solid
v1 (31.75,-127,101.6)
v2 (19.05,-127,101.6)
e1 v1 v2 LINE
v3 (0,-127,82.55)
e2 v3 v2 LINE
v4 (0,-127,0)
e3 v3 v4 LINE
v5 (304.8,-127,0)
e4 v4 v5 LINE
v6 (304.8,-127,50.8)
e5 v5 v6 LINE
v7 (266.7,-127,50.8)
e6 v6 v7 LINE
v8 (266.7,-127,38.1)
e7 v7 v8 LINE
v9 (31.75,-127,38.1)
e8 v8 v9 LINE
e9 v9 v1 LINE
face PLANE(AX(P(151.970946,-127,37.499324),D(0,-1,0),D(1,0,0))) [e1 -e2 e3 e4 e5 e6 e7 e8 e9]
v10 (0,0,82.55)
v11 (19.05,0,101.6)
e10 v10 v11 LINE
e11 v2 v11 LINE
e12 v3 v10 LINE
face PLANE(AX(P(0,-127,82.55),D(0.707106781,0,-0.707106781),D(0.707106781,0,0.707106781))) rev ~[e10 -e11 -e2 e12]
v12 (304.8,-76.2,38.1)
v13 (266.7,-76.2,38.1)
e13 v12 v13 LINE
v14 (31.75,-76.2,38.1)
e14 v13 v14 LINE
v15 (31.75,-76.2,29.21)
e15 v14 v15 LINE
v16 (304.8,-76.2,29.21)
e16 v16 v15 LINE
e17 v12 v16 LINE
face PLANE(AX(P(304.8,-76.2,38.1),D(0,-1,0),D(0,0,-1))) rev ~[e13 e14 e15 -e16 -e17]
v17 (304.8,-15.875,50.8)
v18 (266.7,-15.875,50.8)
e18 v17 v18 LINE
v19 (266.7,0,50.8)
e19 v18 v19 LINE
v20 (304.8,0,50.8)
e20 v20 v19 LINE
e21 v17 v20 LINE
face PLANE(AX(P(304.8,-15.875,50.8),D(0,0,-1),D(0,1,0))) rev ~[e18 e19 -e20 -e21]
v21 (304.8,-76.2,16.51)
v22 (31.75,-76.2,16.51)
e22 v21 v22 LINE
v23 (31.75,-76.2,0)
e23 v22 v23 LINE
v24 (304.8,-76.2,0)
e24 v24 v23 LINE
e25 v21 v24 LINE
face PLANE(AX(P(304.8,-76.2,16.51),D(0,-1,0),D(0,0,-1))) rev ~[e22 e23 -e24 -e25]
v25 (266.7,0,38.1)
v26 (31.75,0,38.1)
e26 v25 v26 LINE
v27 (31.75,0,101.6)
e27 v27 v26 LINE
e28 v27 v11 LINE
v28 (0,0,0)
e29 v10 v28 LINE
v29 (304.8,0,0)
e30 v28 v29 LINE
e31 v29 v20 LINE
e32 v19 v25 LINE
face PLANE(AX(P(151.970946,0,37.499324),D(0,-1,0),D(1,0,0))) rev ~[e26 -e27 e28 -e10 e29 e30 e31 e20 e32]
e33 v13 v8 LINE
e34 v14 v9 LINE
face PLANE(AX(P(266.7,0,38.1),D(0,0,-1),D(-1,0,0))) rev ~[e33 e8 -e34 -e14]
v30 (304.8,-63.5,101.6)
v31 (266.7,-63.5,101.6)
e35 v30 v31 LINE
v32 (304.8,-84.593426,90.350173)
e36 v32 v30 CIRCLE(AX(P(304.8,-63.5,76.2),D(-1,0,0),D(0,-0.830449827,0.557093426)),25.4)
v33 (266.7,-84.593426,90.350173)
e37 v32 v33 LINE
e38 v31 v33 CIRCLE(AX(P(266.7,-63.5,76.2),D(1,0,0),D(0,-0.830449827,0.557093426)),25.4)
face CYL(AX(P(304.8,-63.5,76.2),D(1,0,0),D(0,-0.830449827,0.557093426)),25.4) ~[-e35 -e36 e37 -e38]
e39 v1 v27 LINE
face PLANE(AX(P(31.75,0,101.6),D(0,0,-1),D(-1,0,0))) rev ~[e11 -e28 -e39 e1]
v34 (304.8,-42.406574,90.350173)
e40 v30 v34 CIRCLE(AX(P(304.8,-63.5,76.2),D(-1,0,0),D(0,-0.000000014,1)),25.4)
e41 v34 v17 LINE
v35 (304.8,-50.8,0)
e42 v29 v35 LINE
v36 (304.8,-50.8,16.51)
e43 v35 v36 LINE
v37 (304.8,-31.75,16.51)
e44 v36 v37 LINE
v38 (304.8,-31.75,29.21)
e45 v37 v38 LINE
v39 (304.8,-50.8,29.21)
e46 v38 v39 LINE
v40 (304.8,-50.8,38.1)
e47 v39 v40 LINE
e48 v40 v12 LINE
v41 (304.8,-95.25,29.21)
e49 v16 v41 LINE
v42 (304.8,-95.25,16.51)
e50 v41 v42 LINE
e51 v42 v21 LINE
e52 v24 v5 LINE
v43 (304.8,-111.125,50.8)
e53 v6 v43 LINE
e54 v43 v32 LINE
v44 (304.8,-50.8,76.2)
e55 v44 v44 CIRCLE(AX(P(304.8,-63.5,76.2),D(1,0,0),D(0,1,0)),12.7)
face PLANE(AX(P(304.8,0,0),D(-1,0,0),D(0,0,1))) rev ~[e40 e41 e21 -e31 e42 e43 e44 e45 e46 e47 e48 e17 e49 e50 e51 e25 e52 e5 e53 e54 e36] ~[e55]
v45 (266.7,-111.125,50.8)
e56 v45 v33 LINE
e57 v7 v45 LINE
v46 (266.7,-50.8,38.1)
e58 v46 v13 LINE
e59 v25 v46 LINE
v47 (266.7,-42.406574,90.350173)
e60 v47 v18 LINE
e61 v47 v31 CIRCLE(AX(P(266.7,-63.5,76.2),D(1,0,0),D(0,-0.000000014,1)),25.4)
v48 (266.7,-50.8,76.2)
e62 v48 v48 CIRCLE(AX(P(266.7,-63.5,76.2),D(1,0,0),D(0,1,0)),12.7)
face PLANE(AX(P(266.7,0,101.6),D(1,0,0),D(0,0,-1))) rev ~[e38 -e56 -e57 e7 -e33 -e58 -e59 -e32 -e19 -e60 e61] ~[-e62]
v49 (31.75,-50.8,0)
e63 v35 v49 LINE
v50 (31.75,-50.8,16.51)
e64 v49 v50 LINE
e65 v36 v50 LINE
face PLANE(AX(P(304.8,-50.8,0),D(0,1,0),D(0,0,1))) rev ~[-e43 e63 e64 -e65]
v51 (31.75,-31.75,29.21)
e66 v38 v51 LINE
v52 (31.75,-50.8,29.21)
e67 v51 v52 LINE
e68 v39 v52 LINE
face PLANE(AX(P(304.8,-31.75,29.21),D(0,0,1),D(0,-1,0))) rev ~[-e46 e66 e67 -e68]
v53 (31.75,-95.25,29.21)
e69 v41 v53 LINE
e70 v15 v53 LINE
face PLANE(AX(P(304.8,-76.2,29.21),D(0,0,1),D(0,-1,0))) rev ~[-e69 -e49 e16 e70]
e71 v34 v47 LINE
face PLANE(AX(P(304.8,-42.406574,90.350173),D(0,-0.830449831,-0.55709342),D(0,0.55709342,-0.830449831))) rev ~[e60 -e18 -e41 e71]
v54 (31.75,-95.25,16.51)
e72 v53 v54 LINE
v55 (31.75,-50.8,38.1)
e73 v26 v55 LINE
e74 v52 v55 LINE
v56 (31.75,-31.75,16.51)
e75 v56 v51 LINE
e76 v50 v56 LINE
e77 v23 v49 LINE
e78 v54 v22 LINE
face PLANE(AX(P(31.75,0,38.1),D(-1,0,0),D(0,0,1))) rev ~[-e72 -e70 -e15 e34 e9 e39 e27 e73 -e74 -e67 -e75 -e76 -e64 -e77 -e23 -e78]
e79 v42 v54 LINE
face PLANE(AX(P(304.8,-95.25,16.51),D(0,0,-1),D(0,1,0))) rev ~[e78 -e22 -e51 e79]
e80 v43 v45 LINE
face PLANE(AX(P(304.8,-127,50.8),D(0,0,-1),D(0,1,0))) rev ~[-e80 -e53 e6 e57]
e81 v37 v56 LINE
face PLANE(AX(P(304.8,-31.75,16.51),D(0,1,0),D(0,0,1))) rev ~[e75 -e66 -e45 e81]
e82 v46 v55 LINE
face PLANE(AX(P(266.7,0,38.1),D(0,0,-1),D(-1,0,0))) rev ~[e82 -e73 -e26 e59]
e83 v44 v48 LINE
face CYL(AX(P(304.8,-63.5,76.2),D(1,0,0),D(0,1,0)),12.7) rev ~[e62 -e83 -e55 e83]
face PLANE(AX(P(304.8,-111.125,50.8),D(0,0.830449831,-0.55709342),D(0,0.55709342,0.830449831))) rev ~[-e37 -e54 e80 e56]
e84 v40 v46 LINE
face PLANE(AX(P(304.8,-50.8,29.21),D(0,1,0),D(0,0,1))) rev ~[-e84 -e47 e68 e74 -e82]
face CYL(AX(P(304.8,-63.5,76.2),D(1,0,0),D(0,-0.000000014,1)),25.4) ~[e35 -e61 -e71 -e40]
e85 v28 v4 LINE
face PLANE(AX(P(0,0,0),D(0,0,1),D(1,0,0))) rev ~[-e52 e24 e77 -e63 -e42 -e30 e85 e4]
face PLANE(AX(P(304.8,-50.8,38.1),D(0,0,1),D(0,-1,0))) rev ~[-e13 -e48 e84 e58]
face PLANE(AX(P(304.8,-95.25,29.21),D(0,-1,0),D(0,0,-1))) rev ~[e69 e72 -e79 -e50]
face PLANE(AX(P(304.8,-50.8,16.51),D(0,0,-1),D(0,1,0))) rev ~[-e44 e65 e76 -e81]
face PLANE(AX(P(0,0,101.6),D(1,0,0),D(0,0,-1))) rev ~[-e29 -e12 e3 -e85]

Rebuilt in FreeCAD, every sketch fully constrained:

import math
import FreeCAD as App
import Part
import Sketcher
Q = App.Units.Quantity


def add_polygon(sketch, points):
    """Adds a closed chain of lines whose ends are joined by coincident constraints."""
    first, n = sketch.GeometryCount, len(points)
    for a, b in zip(points, points[1:] + points[:1]):
        sketch.addGeometry(Part.LineSegment(App.Vector(*a, 0), App.Vector(*b, 0)), False)
    for i in range(n):
        sketch.addConstraint(Sketcher.Constraint("Coincident", first + i, 2, first + (i + 1) % n, 1))

doc = App.newDocument("Part")
params = doc.addObject("Spreadsheet::Sheet", "Params")
for row, (alias, value) in enumerate([
    ("sketch1_width", "12 in"),
    ("sketch1_height", "4 in"),
    ("sketch1_width2", "1.5 in"),
    ("sketch1_height2", "2.5 in"),
    ("sketch1_width3", "9.25 in"),
    ("pad1_length", "5 in"),
    ("sketch2_diameter", "1 in"),
    ("sketch2_radius", "1 in"),
    ("sketch2_width", "1 in"),
    ("sketch2_height", "2 in"),
    ("sketch2_width2", "2.5 in"),
    ("pocket1_length", "10.75 in"),
    ("sketch3_width", "0.75 in"),
], start=1):
    params.set(f"A{row}", alias)
    params.set(f"B{row}", "=" + value)
    params.setAlias(f"B{row}", alias)

body = doc.addObject("PartDesign::Body", "Body")

# Sketch on XZ plane
sketch1 = body.newObject("Sketcher::SketchObject", "Sketch")
sketch1.AttachmentSupport = (doc.getObject("XZ_Plane"), [""])
sketch1.MapMode = "FlatFace"
add_polygon(sketch1, [(0, 102), (0, 0), (305, 0), (305, 102), (267, 102), (267, 38), (32, 38), (32, 102)])  # lines 0-7
sketch1.addConstraint(Sketcher.Constraint("Vertical", 0))
sketch1.addConstraint(Sketcher.Constraint("Horizontal", 1))
sketch1.addConstraint(Sketcher.Constraint("Vertical", 2))
sketch1.addConstraint(Sketcher.Constraint("Horizontal", 3))
sketch1.addConstraint(Sketcher.Constraint("Vertical", 4))
sketch1.addConstraint(Sketcher.Constraint("Horizontal", 5))
sketch1.addConstraint(Sketcher.Constraint("Vertical", 6))
sketch1.addConstraint(Sketcher.Constraint("Horizontal", 7))
sketch1.addConstraint(Sketcher.Constraint("Coincident", 0, 2, -1, 1))
sketch1.addConstraint(Sketcher.Constraint("Horizontal", 3, 2, 6, 2))
sketch1.addConstraint(Sketcher.Constraint("DistanceX", 1, 1, 1, 2, Q("12 in")))
sketch1.addConstraint(Sketcher.Constraint("DistanceY", 0, 2, 0, 1, Q("4 in")))
sketch1.addConstraint(Sketcher.Constraint("DistanceX", 3, 2, 3, 1, Q("1.5 in")))
sketch1.addConstraint(Sketcher.Constraint("DistanceY", 4, 2, 4, 1, Q("2.5 in")))
sketch1.addConstraint(Sketcher.Constraint("DistanceX", 5, 2, 5, 1, Q("9.25 in")))
sketch1.setExpression("Constraints[18]", "Params.sketch1_width")
sketch1.setExpression("Constraints[19]", "Params.sketch1_height")
sketch1.setExpression("Constraints[20]", "Params.sketch1_width2")
sketch1.setExpression("Constraints[21]", "Params.sketch1_height2")
sketch1.setExpression("Constraints[22]", "Params.sketch1_width3")
pad1 = body.newObject("PartDesign::Pad", "Pad")
pad1.Profile = sketch1
pad1.setExpression("Length", "Params.pad1_length")

# Sketch on YZ plane
sketch2 = body.newObject("Sketcher::SketchObject", "Sketch001")
sketch2.AttachmentSupport = (doc.getObject("YZ_Plane"), [""])
sketch2.MapMode = "FlatFace"
sketch2.AttachmentOffset = App.Placement(App.Vector(0, 0, 12 * 25.4), App.Rotation())
sketch2.addGeometry(Part.Circle(App.Vector(-64, 76, 0), App.Vector(0, 0, 1), 13), False)  # 0
sketch2.addGeometry(Part.LineSegment(App.Vector(-127, 51, 0), App.Vector(-111, 51, 0)), False)  # 1
sketch2.addGeometry(Part.LineSegment(App.Vector(-111, 51, 0), App.Vector(-85, 90, 0)), False)  # 2
sketch2.addGeometry(Part.ArcOfCircle(Part.Circle(App.Vector(-64, 76, 0), App.Vector(0, 0, 1), 25), math.radians(90), math.radians(146)), False)  # 3
sketch2.addGeometry(Part.LineSegment(App.Vector(-64, 102, 0), App.Vector(-127, 102, 0)), False)  # 4
sketch2.addGeometry(Part.LineSegment(App.Vector(-127, 102, 0), App.Vector(-127, 51, 0)), False)  # 5
sketch2.addGeometry(Part.LineSegment(App.Vector(0, 102, 0), App.Vector(-64, 102, 0)), False)  # 6
sketch2.addGeometry(Part.ArcOfCircle(Part.Circle(App.Vector(-63, 76, 0), App.Vector(0, 0, 1), 25), math.radians(34), math.radians(90)), False)  # 7
sketch2.addGeometry(Part.LineSegment(App.Vector(-42, 90, 0), App.Vector(-16, 51, 0)), False)  # 8
sketch2.addGeometry(Part.LineSegment(App.Vector(-16, 51, 0), App.Vector(0, 51, 0)), False)  # 9
sketch2.addGeometry(Part.LineSegment(App.Vector(0, 51, 0), App.Vector(0, 102, 0)), False)  # 10
add_polygon(sketch2, [(-76, 17), (-76, 0), (-51, 0), (-51, 17), (-32, 17), (-32, 29), (-51, 29), (-51, 38), (-76, 38), (-76, 29), (-95, 29), (-95, 17)])  # lines 11-22
sketch2.addConstraint(Sketcher.Constraint("Coincident", 1, 2, 2, 1))
sketch2.addConstraint(Sketcher.Constraint("Tangent", 2, 2, 3, 2))
sketch2.addConstraint(Sketcher.Constraint("Tangent", 3, 1, 4, 1))
sketch2.addConstraint(Sketcher.Constraint("Coincident", 4, 2, 5, 1))
sketch2.addConstraint(Sketcher.Constraint("Coincident", 5, 2, 1, 1))
sketch2.addConstraint(Sketcher.Constraint("Tangent", 6, 2, 7, 2))
sketch2.addConstraint(Sketcher.Constraint("Tangent", 7, 1, 8, 1))
sketch2.addConstraint(Sketcher.Constraint("Coincident", 8, 2, 9, 1))
sketch2.addConstraint(Sketcher.Constraint("Coincident", 9, 2, 10, 1))
sketch2.addConstraint(Sketcher.Constraint("Coincident", 10, 2, 6, 1))
sketch2.addConstraint(Sketcher.Constraint("Horizontal", 1))
sketch2.addConstraint(Sketcher.Constraint("Horizontal", 4))
sketch2.addConstraint(Sketcher.Constraint("Vertical", 5))
sketch2.addConstraint(Sketcher.Constraint("Horizontal", 6))
sketch2.addConstraint(Sketcher.Constraint("Horizontal", 9))
sketch2.addConstraint(Sketcher.Constraint("Vertical", 10))
sketch2.addConstraint(Sketcher.Constraint("Vertical", 11))
sketch2.addConstraint(Sketcher.Constraint("Horizontal", 12))
sketch2.addConstraint(Sketcher.Constraint("Vertical", 13))
sketch2.addConstraint(Sketcher.Constraint("Horizontal", 14))
sketch2.addConstraint(Sketcher.Constraint("Vertical", 15))
sketch2.addConstraint(Sketcher.Constraint("Horizontal", 16))
sketch2.addConstraint(Sketcher.Constraint("Vertical", 17))
sketch2.addConstraint(Sketcher.Constraint("Horizontal", 18))
sketch2.addConstraint(Sketcher.Constraint("Vertical", 19))
sketch2.addConstraint(Sketcher.Constraint("Horizontal", 20))
sketch2.addConstraint(Sketcher.Constraint("Vertical", 21))
sketch2.addConstraint(Sketcher.Constraint("Horizontal", 22))
sketch2.addConstraint(Sketcher.Constraint("Coincident", 3, 3, 0, 3))
sketch2.addConstraint(Sketcher.Constraint("Coincident", 7, 3, 0, 3))
sketch2.addConstraint(Sketcher.Constraint("Equal", 3, 7))
sketch2.addConstraint(Sketcher.Constraint("PointOnObject", 9, 2, -2))
sketch2.addConstraint(Sketcher.Constraint("PointOnObject", 11, 2, -1))
sketch2.addConstraint(Sketcher.Constraint("Horizontal", 2, 2, 7, 1))
sketch2.addConstraint(Sketcher.Constraint("Horizontal", 5, 2, 8, 2))
sketch2.addConstraint(Sketcher.Constraint("Horizontal", 16, 2, 19, 2))
sketch2.addConstraint(Sketcher.Constraint("Horizontal", 14, 2, 21, 2))
sketch2.addConstraint(Sketcher.Constraint("Vertical", 13, 2, 16, 2))
sketch2.addConstraint(Sketcher.Constraint("Vertical", 11, 2, 18, 2))
sketch2.addConstraint(Sketcher.Constraint("Equal", 4, 6))
sketch2.addConstraint(Sketcher.Constraint("Equal", 16, 20))
sketch2.addConstraint(Sketcher.Constraint("Diameter", 0, Q("1 in")))
sketch2.addConstraint(Sketcher.Constraint("Radius", 3, Q("1 in")))
sketch2.addConstraint(Sketcher.Constraint("DistanceX", 12, 1, 12, 2, Q("1 in")))
sketch2.addConstraint(Sketcher.Constraint("DistanceY", 5, 2, 5, 1, Q("2 in")))
sketch2.addConstraint(Sketcher.Constraint("DistanceX", 4, 2, 4, 1, Q("2.5 in")))
sketch2.addConstraint(Sketcher.Constraint("DistanceY", 15, 1, 15, 2, Q("0.5 in")))
sketch2.addConstraint(Sketcher.Constraint("DistanceY", -1, 1, 0, 3, Q("3 in")))
sketch2.addConstraint(Sketcher.Constraint("DistanceX", 11, 2, -1, 1, Q("3 in")))
sketch2.addConstraint(Sketcher.Constraint("DistanceX", 14, 1, 14, 2, Q("0.75 in")))
sketch2.addConstraint(Sketcher.Constraint("DistanceY", 11, 2, 11, 1, Q("0.65 in")))
sketch2.addConstraint(Sketcher.Constraint("DistanceY", 17, 1, 17, 2, Q("0.35 in")))
sketch2.addConstraint(Sketcher.Constraint("DistanceX", 1, 1, 1, 2, Q("0.625 in")))
sketch2.setExpression("Constraints[53]", "Params.sketch2_diameter")
sketch2.setExpression("Constraints[54]", "Params.sketch2_radius")
sketch2.setExpression("Constraints[55]", "Params.sketch2_width")
sketch2.setExpression("Constraints[56]", "Params.sketch2_height")
sketch2.setExpression("Constraints[57]", "Params.sketch2_width2")
pocket1 = body.newObject("PartDesign::Pocket", "Pocket")
pocket1.Profile = sketch2
pocket1.setExpression("Length", "Params.pocket1_length")

# Sketch on XZ plane
sketch3 = body.newObject("Sketcher::SketchObject", "Sketch002")
sketch3.AttachmentSupport = (doc.getObject("XZ_Plane"), [""])
sketch3.MapMode = "FlatFace"
sketch3.AttachmentOffset = App.Placement(App.Vector(0, 0, 5 * 25.4), App.Rotation())
add_polygon(sketch3, [(0, 102), (0, 83), (19, 102)])  # lines 0-2
sketch3.addConstraint(Sketcher.Constraint("Vertical", 0))
sketch3.addConstraint(Sketcher.Constraint("Horizontal", 2))
sketch3.addConstraint(Sketcher.Constraint("PointOnObject", 0, 2, -2))
sketch3.addConstraint(Sketcher.Constraint("Equal", 2, 0))
sketch3.addConstraint(Sketcher.Constraint("DistanceY", -1, 1, 1, 2, Q("4 in")))
sketch3.addConstraint(Sketcher.Constraint("DistanceX", 2, 2, 2, 1, Q("0.75 in")))
sketch3.setExpression("Constraints[8]", "Params.sketch3_width")
pocket2 = body.newObject("PartDesign::Pocket", "Pocket001")
pocket2.Profile = sketch3
pocket2.Type = "ThroughAll"

doc.recompute()
